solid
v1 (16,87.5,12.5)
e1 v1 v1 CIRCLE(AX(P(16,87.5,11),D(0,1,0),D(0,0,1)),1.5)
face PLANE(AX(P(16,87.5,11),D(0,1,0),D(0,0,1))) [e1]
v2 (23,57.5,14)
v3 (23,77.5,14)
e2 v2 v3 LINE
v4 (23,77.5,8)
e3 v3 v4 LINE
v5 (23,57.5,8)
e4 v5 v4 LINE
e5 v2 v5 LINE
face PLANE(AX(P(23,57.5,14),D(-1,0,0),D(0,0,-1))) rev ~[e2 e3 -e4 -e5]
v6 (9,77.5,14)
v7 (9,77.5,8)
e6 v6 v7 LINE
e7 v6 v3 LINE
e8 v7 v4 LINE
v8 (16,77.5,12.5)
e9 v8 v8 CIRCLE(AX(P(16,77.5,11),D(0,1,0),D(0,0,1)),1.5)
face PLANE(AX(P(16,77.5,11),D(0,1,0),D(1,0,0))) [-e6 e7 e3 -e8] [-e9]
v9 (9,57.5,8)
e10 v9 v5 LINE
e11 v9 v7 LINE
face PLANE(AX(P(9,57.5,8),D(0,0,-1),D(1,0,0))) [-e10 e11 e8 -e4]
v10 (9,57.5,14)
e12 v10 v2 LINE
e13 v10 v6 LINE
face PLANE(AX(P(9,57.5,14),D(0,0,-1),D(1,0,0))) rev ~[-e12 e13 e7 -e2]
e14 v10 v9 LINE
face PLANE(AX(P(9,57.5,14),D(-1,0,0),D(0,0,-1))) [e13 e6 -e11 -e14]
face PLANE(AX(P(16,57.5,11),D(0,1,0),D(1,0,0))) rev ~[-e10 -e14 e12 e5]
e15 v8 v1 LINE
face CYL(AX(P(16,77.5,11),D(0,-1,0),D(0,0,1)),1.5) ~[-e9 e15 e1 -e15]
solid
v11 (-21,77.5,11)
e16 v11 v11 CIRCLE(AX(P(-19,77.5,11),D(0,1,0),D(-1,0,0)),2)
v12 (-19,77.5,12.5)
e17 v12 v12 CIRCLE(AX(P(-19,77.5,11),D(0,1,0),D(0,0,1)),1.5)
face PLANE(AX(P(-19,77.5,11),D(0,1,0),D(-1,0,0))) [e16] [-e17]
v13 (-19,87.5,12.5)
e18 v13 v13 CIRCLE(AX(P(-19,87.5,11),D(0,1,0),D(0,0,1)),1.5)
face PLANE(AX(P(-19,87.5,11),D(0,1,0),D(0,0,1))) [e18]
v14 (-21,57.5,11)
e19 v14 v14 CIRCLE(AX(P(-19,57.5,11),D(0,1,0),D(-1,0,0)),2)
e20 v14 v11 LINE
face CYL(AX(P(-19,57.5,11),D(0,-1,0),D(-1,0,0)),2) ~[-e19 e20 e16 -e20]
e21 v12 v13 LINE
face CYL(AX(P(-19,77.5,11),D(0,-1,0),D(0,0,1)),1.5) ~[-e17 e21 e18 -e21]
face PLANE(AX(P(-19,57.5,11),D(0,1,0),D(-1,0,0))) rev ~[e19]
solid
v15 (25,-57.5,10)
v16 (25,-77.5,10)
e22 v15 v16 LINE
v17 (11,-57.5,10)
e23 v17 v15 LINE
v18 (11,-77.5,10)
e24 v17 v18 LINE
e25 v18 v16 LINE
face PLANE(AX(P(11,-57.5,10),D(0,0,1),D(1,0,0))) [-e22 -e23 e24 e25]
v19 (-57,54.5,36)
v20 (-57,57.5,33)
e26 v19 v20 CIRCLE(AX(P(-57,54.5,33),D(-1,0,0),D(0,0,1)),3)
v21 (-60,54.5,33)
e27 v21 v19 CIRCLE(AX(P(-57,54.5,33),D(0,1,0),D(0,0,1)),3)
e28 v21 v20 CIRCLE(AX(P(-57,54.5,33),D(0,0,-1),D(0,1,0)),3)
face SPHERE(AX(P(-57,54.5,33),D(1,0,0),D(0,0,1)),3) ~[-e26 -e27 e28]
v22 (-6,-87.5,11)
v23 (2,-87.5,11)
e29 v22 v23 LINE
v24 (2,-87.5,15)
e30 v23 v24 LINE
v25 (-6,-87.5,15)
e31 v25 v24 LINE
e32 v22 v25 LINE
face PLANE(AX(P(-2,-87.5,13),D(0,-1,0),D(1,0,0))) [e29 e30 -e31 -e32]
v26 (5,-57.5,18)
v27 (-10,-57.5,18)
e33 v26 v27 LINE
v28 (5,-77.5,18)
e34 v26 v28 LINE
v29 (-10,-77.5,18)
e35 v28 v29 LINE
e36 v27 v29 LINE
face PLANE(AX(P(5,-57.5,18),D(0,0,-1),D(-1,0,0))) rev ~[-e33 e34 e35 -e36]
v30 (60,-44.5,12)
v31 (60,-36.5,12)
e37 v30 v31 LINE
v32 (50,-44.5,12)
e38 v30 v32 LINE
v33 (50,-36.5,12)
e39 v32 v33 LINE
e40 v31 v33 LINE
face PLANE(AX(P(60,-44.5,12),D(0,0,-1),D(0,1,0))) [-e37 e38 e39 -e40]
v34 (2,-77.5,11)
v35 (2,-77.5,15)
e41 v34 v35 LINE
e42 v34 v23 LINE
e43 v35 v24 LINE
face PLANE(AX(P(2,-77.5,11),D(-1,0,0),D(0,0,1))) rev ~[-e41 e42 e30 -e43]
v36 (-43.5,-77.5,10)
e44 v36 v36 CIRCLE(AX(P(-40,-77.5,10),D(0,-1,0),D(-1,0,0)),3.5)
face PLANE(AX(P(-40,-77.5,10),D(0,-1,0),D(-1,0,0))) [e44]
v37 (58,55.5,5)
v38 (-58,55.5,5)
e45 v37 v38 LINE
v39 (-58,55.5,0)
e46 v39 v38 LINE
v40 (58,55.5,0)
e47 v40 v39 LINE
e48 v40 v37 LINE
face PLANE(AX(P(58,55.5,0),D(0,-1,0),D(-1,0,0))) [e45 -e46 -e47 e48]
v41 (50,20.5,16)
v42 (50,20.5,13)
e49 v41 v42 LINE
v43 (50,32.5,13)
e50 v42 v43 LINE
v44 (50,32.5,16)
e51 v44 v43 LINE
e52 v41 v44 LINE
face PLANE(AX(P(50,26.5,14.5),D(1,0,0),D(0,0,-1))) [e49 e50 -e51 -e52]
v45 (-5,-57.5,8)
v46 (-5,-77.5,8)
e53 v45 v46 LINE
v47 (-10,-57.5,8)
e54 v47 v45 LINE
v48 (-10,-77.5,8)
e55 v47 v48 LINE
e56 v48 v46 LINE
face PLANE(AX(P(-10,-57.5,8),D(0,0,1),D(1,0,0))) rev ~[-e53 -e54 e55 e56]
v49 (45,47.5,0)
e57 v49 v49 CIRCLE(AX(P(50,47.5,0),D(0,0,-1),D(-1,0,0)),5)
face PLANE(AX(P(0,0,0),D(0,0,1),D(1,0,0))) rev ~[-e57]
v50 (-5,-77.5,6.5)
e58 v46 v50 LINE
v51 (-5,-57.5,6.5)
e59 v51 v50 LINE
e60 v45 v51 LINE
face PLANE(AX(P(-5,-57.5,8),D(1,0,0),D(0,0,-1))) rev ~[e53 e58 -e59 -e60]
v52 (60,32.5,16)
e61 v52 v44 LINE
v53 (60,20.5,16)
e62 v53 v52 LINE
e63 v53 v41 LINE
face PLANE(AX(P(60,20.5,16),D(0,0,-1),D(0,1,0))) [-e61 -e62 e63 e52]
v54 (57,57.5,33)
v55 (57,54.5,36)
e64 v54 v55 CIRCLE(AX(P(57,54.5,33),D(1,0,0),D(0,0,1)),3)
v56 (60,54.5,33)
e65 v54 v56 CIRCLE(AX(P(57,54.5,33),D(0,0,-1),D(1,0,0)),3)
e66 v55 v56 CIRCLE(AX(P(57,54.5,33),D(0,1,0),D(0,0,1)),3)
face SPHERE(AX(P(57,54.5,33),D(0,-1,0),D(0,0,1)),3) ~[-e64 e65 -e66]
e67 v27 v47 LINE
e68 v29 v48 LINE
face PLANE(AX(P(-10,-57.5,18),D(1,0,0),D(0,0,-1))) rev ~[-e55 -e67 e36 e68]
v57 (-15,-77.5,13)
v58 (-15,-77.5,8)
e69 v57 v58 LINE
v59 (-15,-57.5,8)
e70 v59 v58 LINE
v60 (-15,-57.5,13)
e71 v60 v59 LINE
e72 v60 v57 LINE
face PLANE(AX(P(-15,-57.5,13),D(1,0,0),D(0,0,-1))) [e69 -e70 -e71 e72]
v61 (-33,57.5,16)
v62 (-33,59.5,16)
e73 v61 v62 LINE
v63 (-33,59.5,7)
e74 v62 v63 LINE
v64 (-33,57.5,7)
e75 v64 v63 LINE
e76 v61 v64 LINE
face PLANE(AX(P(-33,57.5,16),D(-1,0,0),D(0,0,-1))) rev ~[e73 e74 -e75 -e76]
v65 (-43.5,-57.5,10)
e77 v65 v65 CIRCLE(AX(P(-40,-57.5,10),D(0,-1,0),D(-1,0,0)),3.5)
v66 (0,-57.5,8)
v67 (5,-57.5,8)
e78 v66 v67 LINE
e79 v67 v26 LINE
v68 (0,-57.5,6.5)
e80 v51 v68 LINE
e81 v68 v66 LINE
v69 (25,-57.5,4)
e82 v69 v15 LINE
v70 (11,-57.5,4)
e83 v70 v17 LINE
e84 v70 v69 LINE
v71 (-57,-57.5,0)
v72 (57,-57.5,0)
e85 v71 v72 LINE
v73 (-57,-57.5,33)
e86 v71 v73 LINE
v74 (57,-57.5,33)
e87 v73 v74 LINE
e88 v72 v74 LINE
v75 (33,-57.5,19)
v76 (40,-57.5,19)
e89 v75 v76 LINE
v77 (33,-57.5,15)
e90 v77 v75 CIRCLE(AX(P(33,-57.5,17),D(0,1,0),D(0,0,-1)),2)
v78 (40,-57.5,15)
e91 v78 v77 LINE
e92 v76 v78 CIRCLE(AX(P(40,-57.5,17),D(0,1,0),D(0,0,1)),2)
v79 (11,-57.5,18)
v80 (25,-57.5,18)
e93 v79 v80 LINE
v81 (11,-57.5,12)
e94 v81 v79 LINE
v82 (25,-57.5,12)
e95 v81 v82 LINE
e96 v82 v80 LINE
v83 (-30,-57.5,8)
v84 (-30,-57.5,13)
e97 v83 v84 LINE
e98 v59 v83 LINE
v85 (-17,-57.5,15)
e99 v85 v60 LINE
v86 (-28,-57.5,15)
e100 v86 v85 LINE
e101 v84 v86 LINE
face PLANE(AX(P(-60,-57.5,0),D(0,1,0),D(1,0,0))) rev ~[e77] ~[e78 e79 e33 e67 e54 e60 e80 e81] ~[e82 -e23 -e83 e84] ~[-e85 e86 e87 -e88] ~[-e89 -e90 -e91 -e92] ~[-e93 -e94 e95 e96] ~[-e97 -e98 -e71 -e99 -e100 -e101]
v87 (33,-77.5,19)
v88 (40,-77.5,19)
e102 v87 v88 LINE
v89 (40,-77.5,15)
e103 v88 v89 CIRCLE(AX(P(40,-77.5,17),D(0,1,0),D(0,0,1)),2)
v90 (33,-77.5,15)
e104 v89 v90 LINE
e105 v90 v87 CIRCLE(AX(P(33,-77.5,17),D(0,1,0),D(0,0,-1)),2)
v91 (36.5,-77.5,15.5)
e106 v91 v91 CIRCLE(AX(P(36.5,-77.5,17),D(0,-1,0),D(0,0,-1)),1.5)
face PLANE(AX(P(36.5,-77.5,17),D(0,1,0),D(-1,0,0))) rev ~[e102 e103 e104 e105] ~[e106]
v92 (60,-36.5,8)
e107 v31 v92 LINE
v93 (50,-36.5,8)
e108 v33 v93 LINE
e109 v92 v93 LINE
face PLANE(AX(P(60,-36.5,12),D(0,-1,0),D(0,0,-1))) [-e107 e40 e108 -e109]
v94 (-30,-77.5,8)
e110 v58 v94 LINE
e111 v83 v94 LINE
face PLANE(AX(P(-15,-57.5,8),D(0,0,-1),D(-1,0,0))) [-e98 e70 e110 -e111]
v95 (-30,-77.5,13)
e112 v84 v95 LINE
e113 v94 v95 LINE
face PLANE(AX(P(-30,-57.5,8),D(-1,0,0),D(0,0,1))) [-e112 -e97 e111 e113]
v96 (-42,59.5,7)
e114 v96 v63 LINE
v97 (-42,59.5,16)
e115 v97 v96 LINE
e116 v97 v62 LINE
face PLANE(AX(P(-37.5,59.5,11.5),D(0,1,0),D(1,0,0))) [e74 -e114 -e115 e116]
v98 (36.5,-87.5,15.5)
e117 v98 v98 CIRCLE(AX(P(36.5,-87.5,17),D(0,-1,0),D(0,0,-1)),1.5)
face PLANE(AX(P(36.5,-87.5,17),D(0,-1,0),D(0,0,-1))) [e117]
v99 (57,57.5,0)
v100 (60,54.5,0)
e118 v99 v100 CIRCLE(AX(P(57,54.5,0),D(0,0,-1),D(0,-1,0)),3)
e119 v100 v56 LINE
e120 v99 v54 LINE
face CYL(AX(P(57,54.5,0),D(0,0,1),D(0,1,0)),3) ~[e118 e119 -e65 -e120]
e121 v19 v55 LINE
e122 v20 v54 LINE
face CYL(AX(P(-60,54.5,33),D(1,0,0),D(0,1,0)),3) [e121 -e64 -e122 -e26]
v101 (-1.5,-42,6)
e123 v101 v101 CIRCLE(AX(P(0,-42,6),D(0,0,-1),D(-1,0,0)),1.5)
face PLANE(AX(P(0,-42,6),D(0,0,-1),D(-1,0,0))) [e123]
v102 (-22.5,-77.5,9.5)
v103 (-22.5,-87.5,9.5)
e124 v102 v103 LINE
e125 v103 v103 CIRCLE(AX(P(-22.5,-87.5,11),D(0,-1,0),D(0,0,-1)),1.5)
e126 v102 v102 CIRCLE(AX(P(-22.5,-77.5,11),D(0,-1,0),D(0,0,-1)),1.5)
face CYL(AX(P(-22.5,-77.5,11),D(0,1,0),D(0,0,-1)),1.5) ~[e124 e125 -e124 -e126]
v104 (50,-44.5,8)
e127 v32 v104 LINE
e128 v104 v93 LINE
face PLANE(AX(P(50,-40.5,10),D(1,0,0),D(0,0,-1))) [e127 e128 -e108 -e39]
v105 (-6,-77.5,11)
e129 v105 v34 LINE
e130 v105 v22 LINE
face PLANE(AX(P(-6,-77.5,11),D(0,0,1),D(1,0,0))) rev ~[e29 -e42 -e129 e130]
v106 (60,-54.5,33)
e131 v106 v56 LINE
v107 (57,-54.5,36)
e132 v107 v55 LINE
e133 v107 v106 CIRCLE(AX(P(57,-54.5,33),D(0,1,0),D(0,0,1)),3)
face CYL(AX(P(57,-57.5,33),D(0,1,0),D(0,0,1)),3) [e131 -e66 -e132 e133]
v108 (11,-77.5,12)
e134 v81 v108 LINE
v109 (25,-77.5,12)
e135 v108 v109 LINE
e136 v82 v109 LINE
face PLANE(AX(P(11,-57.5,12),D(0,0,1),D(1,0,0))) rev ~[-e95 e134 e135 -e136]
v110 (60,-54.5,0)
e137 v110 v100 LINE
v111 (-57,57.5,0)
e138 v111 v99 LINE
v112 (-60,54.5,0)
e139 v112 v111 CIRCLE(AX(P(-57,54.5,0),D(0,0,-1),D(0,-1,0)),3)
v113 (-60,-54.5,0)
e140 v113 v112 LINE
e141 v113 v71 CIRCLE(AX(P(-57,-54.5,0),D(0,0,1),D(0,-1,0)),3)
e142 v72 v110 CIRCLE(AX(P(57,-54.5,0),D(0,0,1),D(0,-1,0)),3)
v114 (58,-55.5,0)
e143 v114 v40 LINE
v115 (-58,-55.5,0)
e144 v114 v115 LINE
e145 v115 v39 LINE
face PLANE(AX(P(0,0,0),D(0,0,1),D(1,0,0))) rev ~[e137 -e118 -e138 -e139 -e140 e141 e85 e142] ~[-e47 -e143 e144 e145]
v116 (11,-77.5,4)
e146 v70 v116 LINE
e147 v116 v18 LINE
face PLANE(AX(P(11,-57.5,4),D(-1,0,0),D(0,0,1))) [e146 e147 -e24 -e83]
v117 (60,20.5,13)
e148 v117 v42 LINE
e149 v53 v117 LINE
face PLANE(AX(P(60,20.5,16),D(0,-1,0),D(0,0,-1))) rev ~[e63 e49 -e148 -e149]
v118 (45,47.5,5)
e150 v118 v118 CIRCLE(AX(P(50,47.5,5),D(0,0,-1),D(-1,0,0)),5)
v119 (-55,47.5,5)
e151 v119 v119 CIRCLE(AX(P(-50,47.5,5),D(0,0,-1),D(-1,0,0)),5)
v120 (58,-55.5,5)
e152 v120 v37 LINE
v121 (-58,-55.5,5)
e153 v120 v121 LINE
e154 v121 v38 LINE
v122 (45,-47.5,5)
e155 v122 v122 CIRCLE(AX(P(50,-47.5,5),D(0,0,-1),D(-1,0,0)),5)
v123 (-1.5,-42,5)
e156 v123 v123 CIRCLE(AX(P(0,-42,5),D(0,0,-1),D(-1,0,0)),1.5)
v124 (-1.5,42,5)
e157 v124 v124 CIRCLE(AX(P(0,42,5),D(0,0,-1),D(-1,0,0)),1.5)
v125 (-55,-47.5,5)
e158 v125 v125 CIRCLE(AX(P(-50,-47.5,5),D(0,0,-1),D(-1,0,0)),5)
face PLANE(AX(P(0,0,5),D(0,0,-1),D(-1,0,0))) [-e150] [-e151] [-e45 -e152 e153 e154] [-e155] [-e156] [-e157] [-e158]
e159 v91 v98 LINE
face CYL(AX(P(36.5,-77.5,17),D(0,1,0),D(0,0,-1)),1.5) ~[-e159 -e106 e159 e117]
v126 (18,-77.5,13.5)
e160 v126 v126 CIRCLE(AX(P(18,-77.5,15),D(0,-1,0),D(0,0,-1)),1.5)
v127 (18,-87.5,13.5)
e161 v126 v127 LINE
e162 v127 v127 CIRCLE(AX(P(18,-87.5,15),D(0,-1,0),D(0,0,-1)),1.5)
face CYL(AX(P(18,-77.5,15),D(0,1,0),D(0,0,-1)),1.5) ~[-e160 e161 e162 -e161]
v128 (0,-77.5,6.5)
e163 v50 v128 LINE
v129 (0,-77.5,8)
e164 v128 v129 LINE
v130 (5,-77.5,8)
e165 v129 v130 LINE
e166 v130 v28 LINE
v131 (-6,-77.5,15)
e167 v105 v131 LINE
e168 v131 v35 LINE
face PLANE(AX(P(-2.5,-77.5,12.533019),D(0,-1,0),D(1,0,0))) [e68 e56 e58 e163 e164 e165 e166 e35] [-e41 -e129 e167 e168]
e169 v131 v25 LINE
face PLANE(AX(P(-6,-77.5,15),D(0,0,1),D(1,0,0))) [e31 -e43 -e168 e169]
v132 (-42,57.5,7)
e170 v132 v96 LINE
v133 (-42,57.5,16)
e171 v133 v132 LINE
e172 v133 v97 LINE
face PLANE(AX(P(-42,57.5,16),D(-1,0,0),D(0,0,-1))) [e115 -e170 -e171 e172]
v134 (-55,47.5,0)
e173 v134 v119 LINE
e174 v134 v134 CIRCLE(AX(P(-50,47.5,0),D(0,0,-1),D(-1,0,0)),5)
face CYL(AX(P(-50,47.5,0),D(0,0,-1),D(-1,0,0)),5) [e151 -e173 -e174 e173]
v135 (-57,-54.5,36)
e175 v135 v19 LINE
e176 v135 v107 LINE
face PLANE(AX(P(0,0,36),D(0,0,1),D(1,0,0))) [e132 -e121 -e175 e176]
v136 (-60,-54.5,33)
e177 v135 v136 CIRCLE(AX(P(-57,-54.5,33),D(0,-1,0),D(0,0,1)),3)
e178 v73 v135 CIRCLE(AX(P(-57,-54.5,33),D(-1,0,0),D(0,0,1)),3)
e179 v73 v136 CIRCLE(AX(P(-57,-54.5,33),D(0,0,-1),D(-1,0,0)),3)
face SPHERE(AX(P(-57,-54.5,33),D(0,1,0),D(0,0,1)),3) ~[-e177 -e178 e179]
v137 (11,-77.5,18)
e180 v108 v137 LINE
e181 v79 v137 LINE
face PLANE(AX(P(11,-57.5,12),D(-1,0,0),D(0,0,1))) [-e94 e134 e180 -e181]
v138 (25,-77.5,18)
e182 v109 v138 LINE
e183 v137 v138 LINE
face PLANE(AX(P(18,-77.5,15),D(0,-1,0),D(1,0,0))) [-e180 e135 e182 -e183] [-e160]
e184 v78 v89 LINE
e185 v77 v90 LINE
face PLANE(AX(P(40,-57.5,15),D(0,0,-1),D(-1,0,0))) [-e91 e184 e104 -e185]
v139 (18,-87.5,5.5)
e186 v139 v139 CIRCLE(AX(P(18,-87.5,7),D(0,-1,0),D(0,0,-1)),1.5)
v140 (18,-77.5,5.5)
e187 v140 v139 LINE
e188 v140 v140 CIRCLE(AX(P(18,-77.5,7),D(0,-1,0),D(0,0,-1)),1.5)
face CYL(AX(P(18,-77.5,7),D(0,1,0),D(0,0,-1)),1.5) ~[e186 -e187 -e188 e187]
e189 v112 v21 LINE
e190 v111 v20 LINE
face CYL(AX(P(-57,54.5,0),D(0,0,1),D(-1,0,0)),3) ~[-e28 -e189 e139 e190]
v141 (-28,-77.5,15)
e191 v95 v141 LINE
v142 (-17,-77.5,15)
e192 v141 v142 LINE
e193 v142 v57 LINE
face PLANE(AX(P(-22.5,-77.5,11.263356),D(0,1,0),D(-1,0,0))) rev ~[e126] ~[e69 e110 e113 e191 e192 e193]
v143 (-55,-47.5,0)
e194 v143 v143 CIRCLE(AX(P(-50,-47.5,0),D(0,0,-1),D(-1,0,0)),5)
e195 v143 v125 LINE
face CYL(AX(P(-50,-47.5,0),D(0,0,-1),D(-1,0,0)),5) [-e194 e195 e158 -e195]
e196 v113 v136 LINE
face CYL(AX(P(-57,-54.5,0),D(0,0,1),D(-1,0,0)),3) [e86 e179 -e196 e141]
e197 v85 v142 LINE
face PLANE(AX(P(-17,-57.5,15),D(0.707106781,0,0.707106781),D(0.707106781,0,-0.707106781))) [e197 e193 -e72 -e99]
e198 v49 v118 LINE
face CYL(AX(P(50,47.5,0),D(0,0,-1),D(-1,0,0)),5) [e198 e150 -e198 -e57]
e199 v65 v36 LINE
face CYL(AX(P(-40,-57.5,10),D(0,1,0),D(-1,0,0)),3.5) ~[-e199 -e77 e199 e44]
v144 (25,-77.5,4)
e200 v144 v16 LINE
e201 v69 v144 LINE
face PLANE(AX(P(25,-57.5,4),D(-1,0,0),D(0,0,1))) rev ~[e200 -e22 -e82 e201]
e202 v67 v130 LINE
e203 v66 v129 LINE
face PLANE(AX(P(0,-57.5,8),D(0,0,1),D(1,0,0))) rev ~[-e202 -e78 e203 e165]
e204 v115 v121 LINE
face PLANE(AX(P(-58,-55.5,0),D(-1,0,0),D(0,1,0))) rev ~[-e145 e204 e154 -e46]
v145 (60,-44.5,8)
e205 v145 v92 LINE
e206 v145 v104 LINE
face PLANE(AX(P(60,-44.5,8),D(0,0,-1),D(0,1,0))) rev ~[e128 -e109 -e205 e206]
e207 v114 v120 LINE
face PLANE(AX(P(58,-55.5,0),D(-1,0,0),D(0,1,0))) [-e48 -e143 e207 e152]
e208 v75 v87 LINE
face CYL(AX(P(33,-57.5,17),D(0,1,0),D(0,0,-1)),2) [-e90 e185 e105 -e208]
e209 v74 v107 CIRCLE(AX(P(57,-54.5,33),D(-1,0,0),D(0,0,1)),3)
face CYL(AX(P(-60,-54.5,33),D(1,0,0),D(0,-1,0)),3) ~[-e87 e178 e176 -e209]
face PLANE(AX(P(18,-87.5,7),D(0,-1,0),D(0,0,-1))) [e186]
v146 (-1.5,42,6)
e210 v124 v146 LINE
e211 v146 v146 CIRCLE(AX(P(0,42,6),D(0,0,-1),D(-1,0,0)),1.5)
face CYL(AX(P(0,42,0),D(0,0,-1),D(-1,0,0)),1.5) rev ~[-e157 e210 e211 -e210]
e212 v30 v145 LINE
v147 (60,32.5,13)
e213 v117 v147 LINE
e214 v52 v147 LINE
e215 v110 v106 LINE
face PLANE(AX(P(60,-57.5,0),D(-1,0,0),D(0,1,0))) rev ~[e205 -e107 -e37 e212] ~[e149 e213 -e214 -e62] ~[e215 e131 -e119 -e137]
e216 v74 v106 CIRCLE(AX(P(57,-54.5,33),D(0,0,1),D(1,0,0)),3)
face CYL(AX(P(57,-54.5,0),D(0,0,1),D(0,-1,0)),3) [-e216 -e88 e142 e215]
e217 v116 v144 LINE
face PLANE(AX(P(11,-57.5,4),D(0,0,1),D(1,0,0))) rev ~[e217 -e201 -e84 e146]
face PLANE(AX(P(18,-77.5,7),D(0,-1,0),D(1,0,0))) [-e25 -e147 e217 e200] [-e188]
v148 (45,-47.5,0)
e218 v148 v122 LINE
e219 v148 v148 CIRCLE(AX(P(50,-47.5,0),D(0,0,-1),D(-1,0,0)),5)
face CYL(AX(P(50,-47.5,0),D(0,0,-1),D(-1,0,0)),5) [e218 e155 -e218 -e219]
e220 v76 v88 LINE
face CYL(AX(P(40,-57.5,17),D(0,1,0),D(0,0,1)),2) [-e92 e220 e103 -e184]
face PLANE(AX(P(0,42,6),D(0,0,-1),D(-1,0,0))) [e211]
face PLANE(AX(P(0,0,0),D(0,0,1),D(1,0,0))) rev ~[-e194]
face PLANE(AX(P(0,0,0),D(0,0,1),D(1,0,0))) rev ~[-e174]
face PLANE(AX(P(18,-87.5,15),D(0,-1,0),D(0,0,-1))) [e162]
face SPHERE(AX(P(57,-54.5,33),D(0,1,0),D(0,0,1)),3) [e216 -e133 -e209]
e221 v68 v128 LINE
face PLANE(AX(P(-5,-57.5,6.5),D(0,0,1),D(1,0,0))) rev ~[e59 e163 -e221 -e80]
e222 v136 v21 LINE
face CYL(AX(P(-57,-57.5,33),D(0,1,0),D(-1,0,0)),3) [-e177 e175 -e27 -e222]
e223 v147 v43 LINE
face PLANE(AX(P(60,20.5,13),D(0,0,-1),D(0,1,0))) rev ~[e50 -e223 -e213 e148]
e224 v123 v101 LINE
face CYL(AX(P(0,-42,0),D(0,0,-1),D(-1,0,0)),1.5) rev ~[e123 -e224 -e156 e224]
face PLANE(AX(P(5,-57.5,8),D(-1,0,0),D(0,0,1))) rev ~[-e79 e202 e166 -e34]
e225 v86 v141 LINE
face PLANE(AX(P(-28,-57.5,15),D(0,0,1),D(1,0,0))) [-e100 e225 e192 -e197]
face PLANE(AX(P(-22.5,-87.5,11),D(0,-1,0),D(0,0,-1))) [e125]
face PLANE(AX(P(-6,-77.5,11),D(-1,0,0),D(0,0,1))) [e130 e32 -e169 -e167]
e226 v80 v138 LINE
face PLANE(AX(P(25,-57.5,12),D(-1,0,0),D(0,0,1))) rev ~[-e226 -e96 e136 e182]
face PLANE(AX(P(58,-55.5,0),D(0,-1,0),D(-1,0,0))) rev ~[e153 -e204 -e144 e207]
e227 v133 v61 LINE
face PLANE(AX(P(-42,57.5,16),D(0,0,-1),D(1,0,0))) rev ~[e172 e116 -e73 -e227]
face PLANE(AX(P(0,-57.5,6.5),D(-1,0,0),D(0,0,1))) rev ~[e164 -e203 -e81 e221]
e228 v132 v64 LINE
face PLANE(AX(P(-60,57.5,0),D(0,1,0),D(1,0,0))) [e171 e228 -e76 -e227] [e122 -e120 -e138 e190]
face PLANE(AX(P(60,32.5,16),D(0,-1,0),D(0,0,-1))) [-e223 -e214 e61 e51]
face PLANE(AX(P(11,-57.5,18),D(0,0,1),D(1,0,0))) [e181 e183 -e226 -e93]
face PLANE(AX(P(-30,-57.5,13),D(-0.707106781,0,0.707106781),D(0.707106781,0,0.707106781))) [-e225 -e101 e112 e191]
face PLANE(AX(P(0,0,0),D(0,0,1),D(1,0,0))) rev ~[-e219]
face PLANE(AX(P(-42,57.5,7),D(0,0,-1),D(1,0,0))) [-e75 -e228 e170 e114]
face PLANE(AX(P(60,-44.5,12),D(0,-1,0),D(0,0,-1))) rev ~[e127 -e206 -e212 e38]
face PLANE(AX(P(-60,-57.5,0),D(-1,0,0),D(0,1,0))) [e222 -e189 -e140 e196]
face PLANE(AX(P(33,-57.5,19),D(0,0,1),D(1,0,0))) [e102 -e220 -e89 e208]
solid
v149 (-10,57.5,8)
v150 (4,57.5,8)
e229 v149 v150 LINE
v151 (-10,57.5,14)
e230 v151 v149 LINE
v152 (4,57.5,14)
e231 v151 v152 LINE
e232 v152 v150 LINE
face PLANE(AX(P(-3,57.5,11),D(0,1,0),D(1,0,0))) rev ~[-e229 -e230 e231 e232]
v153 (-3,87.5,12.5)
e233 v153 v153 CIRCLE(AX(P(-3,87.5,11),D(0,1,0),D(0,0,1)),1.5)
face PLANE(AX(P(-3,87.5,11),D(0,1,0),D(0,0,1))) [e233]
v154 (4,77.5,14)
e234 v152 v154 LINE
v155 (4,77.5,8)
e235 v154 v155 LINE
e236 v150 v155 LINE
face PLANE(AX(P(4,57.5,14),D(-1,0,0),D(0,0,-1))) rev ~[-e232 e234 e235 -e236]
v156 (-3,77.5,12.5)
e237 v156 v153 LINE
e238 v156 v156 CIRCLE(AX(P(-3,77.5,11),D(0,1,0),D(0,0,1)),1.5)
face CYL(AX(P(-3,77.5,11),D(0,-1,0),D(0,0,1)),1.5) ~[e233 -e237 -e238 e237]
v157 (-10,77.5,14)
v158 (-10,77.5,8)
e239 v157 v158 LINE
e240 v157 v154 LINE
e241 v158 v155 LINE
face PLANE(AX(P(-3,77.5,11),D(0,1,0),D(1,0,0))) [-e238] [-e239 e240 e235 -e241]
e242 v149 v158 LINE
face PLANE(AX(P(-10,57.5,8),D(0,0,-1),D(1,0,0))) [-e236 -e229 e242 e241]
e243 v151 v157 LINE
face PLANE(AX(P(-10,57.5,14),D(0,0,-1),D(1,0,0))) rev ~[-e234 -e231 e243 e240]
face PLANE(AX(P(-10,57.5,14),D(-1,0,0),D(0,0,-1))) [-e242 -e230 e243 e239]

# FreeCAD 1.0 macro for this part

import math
import FreeCAD as App
import Part
import Sketcher
from FreeCAD import Vector


def edges_at(feature, points):
    """Names of the edges that pass closest to the given points."""
    edges = feature.Shape.Edges
    near = lambda p: min(range(len(edges)), key=lambda i: edges[i].distToShape(Part.Vertex(*p))[0])
    return sorted({f"Edge{near(p) + 1}" for p in points})

doc = App.newDocument("Part")
body = doc.addObject("PartDesign::Body", "Body")

# Sketch on XY plane
sketch1 = body.newObject("Sketcher::SketchObject", "Sketch")
sketch1.AttachmentSupport = (doc.getObject("XY_Plane"), [""])
sketch1.MapMode = "FlatFace"
sketch1.addGeometry([
    Part.LineSegment(Vector(-60, 58, 0), Vector(-60, -58, 0)),
    Part.LineSegment(Vector(-60, -58, 0), Vector(60, -58, 0)),
    Part.LineSegment(Vector(60, -58, 0), Vector(60, 58, 0)),
    Part.LineSegment(Vector(60, 58, 0), Vector(-60, 58, 0)),
], False)
sketch1.addConstraint([
    Sketcher.Constraint("Coincident", 0, 2, 1, 1),
    Sketcher.Constraint("Coincident", 1, 2, 2, 1),
    Sketcher.Constraint("Coincident", 2, 2, 3, 1),
    Sketcher.Constraint("Coincident", 3, 2, 0, 1),
    Sketcher.Constraint("Vertical", 0),
    Sketcher.Constraint("Horizontal", 1),
    Sketcher.Constraint("Vertical", 2),
    Sketcher.Constraint("Horizontal", 3),
    Sketcher.Constraint("Symmetric", 0, 2, 2, 2, -1, 1),
    Sketcher.Constraint("DistanceX", 1, 1, 1, 2, 120.0),
    Sketcher.Constraint("DistanceY", 0, 2, 0, 1, 115.0),
])
pad1 = body.newObject("PartDesign::Pad", "Pad")
pad1.Profile = sketch1
pad1.Length = 36

# Sketch on XY plane
sketch2 = body.newObject("Sketcher::SketchObject", "Sketch001")
sketch2.AttachmentSupport = (doc.getObject("XY_Plane"), [""])
sketch2.MapMode = "FlatFace"
sketch2.addGeometry([
    Part.Circle(Vector(0, 42, 0), Vector(0, 0, 1), 1.5),
    Part.Circle(Vector(0, -42, 0), Vector(0, 0, 1), 1.5),
], False)
sketch2.addConstraint([
    Sketcher.Constraint("Equal", 0, 1),
    Sketcher.Constraint("Symmetric", 0, 3, 1, 3, -1, 1),
    Sketcher.Constraint("PointOnObject", 0, 3, -2),
    Sketcher.Constraint("Diameter", 0, 3.0),
    Sketcher.Constraint("DistanceY", -1, 1, 0, 3, 42.0),
])
pocket1 = body.newObject("PartDesign::Pocket", "Pocket")
pocket1.Profile = sketch2
pocket1.Length = 6
pocket1.Reversed = True
doc.recompute()

fillet = body.newObject("PartDesign::Fillet", "Fillet")
fillet.Base = (pocket1, edges_at(pocket1, [
    (60, 0, 36),
    (0, 57.5, 36),
    (-60, 0, 36),
    (0, -57.5, 36),
    (-60, 57.5, 18),
    (60, 57.5, 18),
    (60, -57.5, 18),
    (-60, -57.5, 18),
]))
fillet.Radius = 3

# Sketch on XZ plane
sketch3 = body.newObject("Sketcher::SketchObject", "Sketch002")
sketch3.AttachmentSupport = (doc.getObject("XZ_Plane"), [""])
sketch3.MapMode = "FlatFace"
sketch3.AttachmentOffset = App.Placement(Vector(0, 0, 57.5), App.Rotation())
sketch3.addGeometry([
    Part.Circle(Vector(-40, 10, 0), Vector(0, 0, 1), 3.5),  # 0
    Part.LineSegment(Vector(-28, 15, 0), Vector(-30, 13, 0)),  # 1
    Part.LineSegment(Vector(-30, 13, 0), Vector(-30, 8, 0)),  # 2
    Part.LineSegment(Vector(-30, 8, 0), Vector(-15, 8, 0)),  # 3
    Part.LineSegment(Vector(-15, 8, 0), Vector(-15, 13, 0)),  # 4
    Part.LineSegment(Vector(-15, 13, 0), Vector(-17, 15, 0)),  # 5
    Part.LineSegment(Vector(-17, 15, 0), Vector(-28, 15, 0)),  # 6
    Part.LineSegment(Vector(0, 8, 0), Vector(5, 8, 0)),  # 7
    Part.LineSegment(Vector(5, 8, 0), Vector(5, 18, 0)),  # 8
    Part.LineSegment(Vector(5, 18, 0), Vector(-10, 18, 0)),  # 9
    Part.LineSegment(Vector(-10, 18, 0), Vector(-10, 8, 0)),  # 10
    Part.LineSegment(Vector(-10, 8, 0), Vector(-5, 8, 0)),  # 11
    Part.LineSegment(Vector(-5, 8, 0), Vector(-5, 6.5, 0)),  # 12
    Part.LineSegment(Vector(-5, 6.5, 0), Vector(0, 6.5, 0)),  # 13
    Part.LineSegment(Vector(0, 6.5, 0), Vector(0, 8, 0)),  # 14
    Part.LineSegment(Vector(11, 18, 0), Vector(11, 12, 0)),  # 15
    Part.LineSegment(Vector(11, 12, 0), Vector(25, 12, 0)),  # 16
    Part.LineSegment(Vector(25, 12, 0), Vector(25, 18, 0)),  # 17
    Part.LineSegment(Vector(25, 18, 0), Vector(11, 18, 0)),  # 18
    Part.LineSegment(Vector(11, 10, 0), Vector(11, 4, 0)),  # 19
    Part.LineSegment(Vector(11, 4, 0), Vector(25, 4, 0)),  # 20
    Part.LineSegment(Vector(25, 4, 0), Vector(25, 10, 0)),  # 21
    Part.LineSegment(Vector(25, 10, 0), Vector(11, 10, 0)),  # 22
    Part.LineSegment(Vector(40, 19, 0), Vector(33, 19, 0)),  # 23
    Part.ArcOfCircle(Part.Circle(Vector(33, 17, 0), Vector(0, 0, 1), 2), math.radians(90), math.radians(270)),  # 24
    Part.LineSegment(Vector(33, 15, 0), Vector(40, 15, 0)),  # 25
    Part.ArcOfCircle(Part.Circle(Vector(40, 17, 0), Vector(0, 0, 1), 2), math.radians(-90), math.radians(90)),  # 26
], False)
sketch3.addConstraint([
    Sketcher.Constraint("Coincident", 1, 2, 2, 1),
    Sketcher.Constraint("Coincident", 2, 2, 3, 1),
    Sketcher.Constraint("Coincident", 3, 2, 4, 1),
    Sketcher.Constraint("Coincident", 4, 2, 5, 1),
    Sketcher.Constraint("Coincident", 5, 2, 6, 1),
    Sketcher.Constraint("Coincident", 6, 2, 1, 1),
    Sketcher.Constraint("Coincident", 7, 2, 8, 1),
    Sketcher.Constraint("Coincident", 8, 2, 9, 1),
    Sketcher.Constraint("Coincident", 9, 2, 10, 1),
    Sketcher.Constraint("Coincident", 10, 2, 11, 1),
    Sketcher.Constraint("Coincident", 11, 2, 12, 1),
    Sketcher.Constraint("Coincident", 12, 2, 13, 1),
    Sketcher.Constraint("Coincident", 13, 2, 14, 1),
    Sketcher.Constraint("Coincident", 14, 2, 7, 1),
    Sketcher.Constraint("Coincident", 15, 2, 16, 1),
    Sketcher.Constraint("Coincident", 16, 2, 17, 1),
    Sketcher.Constraint("Coincident", 17, 2, 18, 1),
    Sketcher.Constraint("Coincident", 18, 2, 15, 1),
    Sketcher.Constraint("Coincident", 19, 2, 20, 1),
    Sketcher.Constraint("Coincident", 20, 2, 21, 1),
    Sketcher.Constraint("Coincident", 21, 2, 22, 1),
    Sketcher.Constraint("Coincident", 22, 2, 19, 1),
    Sketcher.Constraint("Tangent", 23, 2, 24, 1),
    Sketcher.Constraint("Tangent", 24, 2, 25, 1),
    Sketcher.Constraint("Tangent", 25, 2, 26, 1),
    Sketcher.Constraint("Tangent", 26, 2, 23, 1),
    Sketcher.Constraint("Vertical", 2),
    Sketcher.Constraint("Horizontal", 3),
    Sketcher.Constraint("Vertical", 4),
    Sketcher.Constraint("Horizontal", 6),
    Sketcher.Constraint("Horizontal", 7),
    Sketcher.Constraint("Vertical", 8),
    Sketcher.Constraint("Horizontal", 9),
    Sketcher.Constraint("Vertical", 10),
    Sketcher.Constraint("Horizontal", 11),
    Sketcher.Constraint("Vertical", 12),
    Sketcher.Constraint("Horizontal", 13),
    Sketcher.Constraint("Vertical", 14),
    Sketcher.Constraint("Vertical", 15),
    Sketcher.Constraint("Horizontal", 16),
    Sketcher.Constraint("Vertical", 17),
    Sketcher.Constraint("Horizontal", 18),
    Sketcher.Constraint("Vertical", 19),
    Sketcher.Constraint("Horizontal", 20),
    Sketcher.Constraint("Vertical", 21),
    Sketcher.Constraint("Horizontal", 22),
    Sketcher.Constraint("Horizontal", 23),
    Sketcher.Constraint("Horizontal", 25),
    Sketcher.Constraint("Symmetric", 7, 2, 11, 2, -2),
    Sketcher.Constraint("PointOnObject", 13, 2, -2),
    Sketcher.Constraint("Perpendicular", 1, 5),
    Sketcher.Constraint("Horizontal", 1, 2, 4, 2),
    Sketcher.Constraint("Horizontal", 3, 2, 7, 2),
    Sketcher.Constraint("Horizontal", 9, 2, 17, 2),
    Sketcher.Constraint("Horizontal", 0, 3, 21, 2),
    Sketcher.Constraint("Horizontal", 6, 2, 24, 2),
    Sketcher.Constraint("Vertical", 18, 2, 19, 2),
    Sketcher.Constraint("Vertical", 17, 2, 20, 2),
    Sketcher.Constraint("Equal", 3, 9),
    Sketcher.Constraint("Equal", 7, 11),
    Sketcher.Constraint("Equal", 13, 2),
    Sketcher.Constraint("Equal", 17, 19),
    Sketcher.Constraint("Equal", 1, 5),
    Sketcher.Constraint("Diameter", 0, 7.0),
    Sketcher.Constraint("Radius", 24, 2.0),
    Sketcher.Constraint("DistanceX", 3, 1, 3, 2, 15.0),
    Sketcher.Constraint("DistanceX", 6, 2, 6, 1, 11.0),
    Sketcher.Constraint("DistanceX", 16, 1, 16, 2, 14.0),
    Sketcher.Constraint("DistanceX", 23, 2, 23, 1, 7.0),
    Sketcher.Constraint("DistanceY", 8, 1, 8, 2, 10.0),
    Sketcher.Constraint("DistanceY", 15, 2, 15, 1, 6.0),
    Sketcher.Constraint("DistanceY", 12, 2, 12, 1, 1.5),
    Sketcher.Constraint("DistanceX", 0, 3, -1, 1, 40.0),
    Sketcher.Constraint("DistanceY", -1, 1, 0, 3, 10.0),
    Sketcher.Constraint("DistanceX", -1, 1, 24, 3, 33.0),
    Sketcher.Constraint("DistanceY", -1, 1, 24, 3, 17.0),
    Sketcher.Constraint("DistanceX", 1, 2, -1, 1, 30.0),
    Sketcher.Constraint("DistanceX", -1, 1, 15, 2, 11.0),
])
pad2 = body.newObject("PartDesign::Pad", "Pad001")
pad2.Profile = sketch3
pad2.Length = 20

# Sketch on XZ plane
sketch4 = body.newObject("Sketcher::SketchObject", "Sketch003")
sketch4.AttachmentSupport = (doc.getObject("XZ_Plane"), [""])
sketch4.MapMode = "FlatFace"
sketch4.AttachmentOffset = App.Placement(Vector(0, 0, 77.5), App.Rotation())
sketch4.addGeometry([
    Part.Circle(Vector(-22.5, 11, 0), Vector(0, 0, 1), 1.5),  # 0
    Part.Circle(Vector(18, 15, 0), Vector(0, 0, 1), 1.5),  # 1
    Part.Circle(Vector(18, 7, 0), Vector(0, 0, 1), 1.5),  # 2
    Part.Circle(Vector(36.5, 17, 0), Vector(0, 0, 1), 1.5),  # 3
    Part.LineSegment(Vector(-6, 15, 0), Vector(-6, 11, 0)),  # 4
    Part.LineSegment(Vector(-6, 11, 0), Vector(2, 11, 0)),  # 5
    Part.LineSegment(Vector(2, 11, 0), Vector(2, 15, 0)),  # 6
    Part.LineSegment(Vector(2, 15, 0), Vector(-6, 15, 0)),  # 7
], False)
sketch4.addConstraint([
    Sketcher.Constraint("Coincident", 4, 2, 5, 1),
    Sketcher.Constraint("Coincident", 5, 2, 6, 1),
    Sketcher.Constraint("Coincident", 6, 2, 7, 1),
    Sketcher.Constraint("Coincident", 7, 2, 4, 1),
    Sketcher.Constraint("Vertical", 4),
    Sketcher.Constraint("Horizontal", 5),
    Sketcher.Constraint("Vertical", 6),
    Sketcher.Constraint("Horizontal", 7),
    Sketcher.Constraint("Equal", 0, 1),
    Sketcher.Constraint("Equal", 1, 2),
    Sketcher.Constraint("Equal", 2, 3),
    Sketcher.Constraint("Horizontal", 0, 3, 4, 2),
    Sketcher.Constraint("Horizontal", 1, 3, 6, 2),
    Sketcher.Constraint("Vertical", 1, 3, 2, 3),
    Sketcher.Constraint("Diameter", 0, 3.0),
    Sketcher.Constraint("DistanceX", 5, 1, 5, 2, 8.0),
    Sketcher.Constraint("DistanceY", 4, 2, 4, 1, 4.0),
    Sketcher.Constraint("DistanceY", -1, 1, 0, 3, 11.0),
    Sketcher.Constraint("DistanceX", -1, 1, 1, 3, 18.0),
    Sketcher.Constraint("DistanceY", -1, 1, 2, 3, 7.0),
    Sketcher.Constraint("DistanceY", -1, 1, 3, 3, 17.0),
    Sketcher.Constraint("DistanceX", 4, 2, -1, 1, 6.0),
    Sketcher.Constraint("DistanceX", 0, 3, 3, 3, 59.0),
    Sketcher.Constraint("DistanceX", 0, 3, -1, 1, 22.5),
])
pad3 = body.newObject("PartDesign::Pad", "Pad002")
pad3.Profile = sketch4
pad3.Length = 10

# Sketch on YZ plane
sketch5 = body.newObject("Sketcher::SketchObject", "Sketch004")
sketch5.AttachmentSupport = (doc.getObject("YZ_Plane"), [""])
sketch5.MapMode = "FlatFace"
sketch5.AttachmentOffset = App.Placement(Vector(0, 0, 60), App.Rotation())
sketch5.addGeometry([
    Part.LineSegment(Vector(32.5, 16, 0), Vector(20.5, 16, 0)),  # 0
    Part.LineSegment(Vector(20.5, 16, 0), Vector(20.5, 13, 0)),  # 1
    Part.LineSegment(Vector(20.5, 13, 0), Vector(32.5, 13, 0)),  # 2
    Part.LineSegment(Vector(32.5, 13, 0), Vector(32.5, 16, 0)),  # 3
    Part.LineSegment(Vector(-36.5, 12, 0), Vector(-44.5, 12, 0)),  # 4
    Part.LineSegment(Vector(-44.5, 12, 0), Vector(-44.5, 8, 0)),  # 5
    Part.LineSegment(Vector(-44.5, 8, 0), Vector(-36.5, 8, 0)),  # 6
    Part.LineSegment(Vector(-36.5, 8, 0), Vector(-36.5, 12, 0)),  # 7
], False)
sketch5.addConstraint([
    Sketcher.Constraint("Coincident", 0, 2, 1, 1),
    Sketcher.Constraint("Coincident", 1, 2, 2, 1),
    Sketcher.Constraint("Coincident", 2, 2, 3, 1),
    Sketcher.Constraint("Coincident", 3, 2, 0, 1),
    Sketcher.Constraint("Coincident", 4, 2, 5, 1),
    Sketcher.Constraint("Coincident", 5, 2, 6, 1),
    Sketcher.Constraint("Coincident", 6, 2, 7, 1),
    Sketcher.Constraint("Coincident", 7, 2, 4, 1),
    Sketcher.Constraint("Horizontal", 0),
    Sketcher.Constraint("Vertical", 1),
    Sketcher.Constraint("Horizontal", 2),
    Sketcher.Constraint("Vertical", 3),
    Sketcher.Constraint("Horizontal", 4),
    Sketcher.Constraint("Vertical", 5),
    Sketcher.Constraint("Horizontal", 6),
    Sketcher.Constraint("Vertical", 7),
    Sketcher.Constraint("DistanceX", 0, 2, 0, 1, 12.0),
    Sketcher.Constraint("DistanceX", 4, 2, 4, 1, 8.0),
    Sketcher.Constraint("DistanceY", 1, 2, 1, 1, 3.0),
    Sketcher.Constraint("DistanceY", 5, 2, 5, 1, 4.0),
    Sketcher.Constraint("DistanceY", -1, 1, 0, 2, 16.0),
    Sketcher.Constraint("DistanceY", -1, 1, 4, 2, 12.0),
    Sketcher.Constraint("DistanceX", 4, 2, 1, 2, 65.0),
    Sketcher.Constraint("DistanceX", -1, 1, 0, 2, 20.5),
])
pocket2 = body.newObject("PartDesign::Pocket", "Pocket001")
pocket2.Profile = sketch5
pocket2.Length = 10

# Sketch on XZ plane
sketch6 = body.newObject("Sketcher::SketchObject", "Sketch005")
sketch6.AttachmentSupport = (doc.getObject("XZ_Plane"), [""])
sketch6.MapMode = "FlatFace"
sketch6.AttachmentOffset = App.Placement(Vector(0, 0, -57.5), App.Rotation())
sketch6.addGeometry([
    Part.LineSegment(Vector(-42, 7, 0), Vector(-42, 16, 0)),
    Part.LineSegment(Vector(-42, 16, 0), Vector(-33, 16, 0)),
    Part.LineSegment(Vector(-33, 16, 0), Vector(-33, 7, 0)),
    Part.LineSegment(Vector(-33, 7, 0), Vector(-42, 7, 0)),
], False)
sketch6.addConstraint([
    Sketcher.Constraint("Coincident", 0, 2, 1, 1),
    Sketcher.Constraint("Coincident", 1, 2, 2, 1),
    Sketcher.Constraint("Coincident", 2, 2, 3, 1),
    Sketcher.Constraint("Coincident", 3, 2, 0, 1),
    Sketcher.Constraint("Vertical", 0),
    Sketcher.Constraint("Horizontal", 1),
    Sketcher.Constraint("Vertical", 2),
    Sketcher.Constraint("Horizontal", 3),
    Sketcher.Constraint("Equal", 3, 0),
    Sketcher.Constraint("DistanceX", 1, 1, 1, 2, 9.0),
    Sketcher.Constraint("DistanceX", 0, 2, -1, 1, 42.0),
    Sketcher.Constraint("DistanceY", -1, 1, 0, 2, 16.0),
])
pad4 = body.newObject("PartDesign::Pad", "Pad003")
pad4.Profile = sketch6
pad4.Length = 2
pad4.Reversed = True

# Sketch on XY plane
sketch7 = body.newObject("Sketcher::SketchObject", "Sketch006")
sketch7.AttachmentSupport = (doc.getObject("XY_Plane"), [""])
sketch7.MapMode = "FlatFace"
sketch7.addGeometry([
    Part.LineSegment(Vector(58, 55.5, 0), Vector(58, -55.5, 0)),  # 0
    Part.LineSegment(Vector(58, -55.5, 0), Vector(-58, -55.5, 0)),  # 1
    Part.LineSegment(Vector(-58, -55.5, 0), Vector(-58, 55.5, 0)),  # 2
    Part.LineSegment(Vector(-58, 55.5, 0), Vector(58, 55.5, 0)),  # 3
    Part.Circle(Vector(50, -47.5, 0), Vector(0, 0, 1), 5),  # 4
    Part.Circle(Vector(0, -42, 0), Vector(0, 0, 1), 1.5),  # 5
    Part.Circle(Vector(-50, -47.5, 0), Vector(0, 0, 1), 5),  # 6
    Part.Circle(Vector(50, 47.5, 0), Vector(0, 0, 1), 5),  # 7
    Part.Circle(Vector(0, 42, 0), Vector(0, 0, 1), 1.5),  # 8
    Part.Circle(Vector(-50, 47.5, 0), Vector(0, 0, 1), 5),  # 9
], False)
sketch7.addConstraint([
    Sketcher.Constraint("Coincident", 0, 2, 1, 1),
    Sketcher.Constraint("Coincident", 1, 2, 2, 1),
    Sketcher.Constraint("Coincident", 2, 2, 3, 1),
    Sketcher.Constraint("Coincident", 3, 2, 0, 1),
    Sketcher.Constraint("Vertical", 0),
    Sketcher.Constraint("Horizontal", 1),
    Sketcher.Constraint("Vertical", 2),
    Sketcher.Constraint("Horizontal", 3),
    Sketcher.Constraint("Equal", 4, 6),
    Sketcher.Constraint("Equal", 6, 7),
    Sketcher.Constraint("Equal", 5, 8),
    Sketcher.Constraint("Equal", 7, 9),
    Sketcher.Constraint("Symmetric", 6, 3, 7, 3, -1, 1),
    Sketcher.Constraint("Symmetric", 5, 3, 8, 3, -1, 1),
    Sketcher.Constraint("Symmetric", 4, 3, 9, 3, -1, 1),
    Sketcher.Constraint("Symmetric", 0, 2, 2, 2, -1, 1),
    Sketcher.Constraint("Symmetric", 4, 3, 6, 3, -2),
    Sketcher.Constraint("PointOnObject", 5, 3, -2),
    Sketcher.Constraint("Diameter", 4, 10.0),
    Sketcher.Constraint("Diameter", 5, 3.0),
    Sketcher.Constraint("DistanceX", 1, 2, 1, 1, 116.0),
    Sketcher.Constraint("DistanceY", 0, 2, 0, 1, 111.0),
    Sketcher.Constraint("DistanceX", -1, 1, 4, 3, 50.0),
    Sketcher.Constraint("DistanceY", 5, 3, -1, 1, 42.0),
    Sketcher.Constraint("DistanceY", 4, 3, 7, 3, 95.0),
])
pocket3 = body.newObject("PartDesign::Pocket", "Pocket002")
pocket3.Profile = sketch7
pocket3.Length = 5
pocket3.Reversed = True
body2 = doc.addObject("PartDesign::Body", "Body001")

# Sketch on XZ plane
sketch8 = body2.newObject("Sketcher::SketchObject", "Sketch007")
sketch8.AttachmentSupport = (doc.getObject("XZ_Plane001"), [""])
sketch8.MapMode = "FlatFace"
sketch8.AttachmentOffset = App.Placement(Vector(0, 0, -57.5), App.Rotation())
sketch8.addGeometry(Part.Circle(Vector(-19, 11, 0), Vector(0, 0, 1), 2), False)
sketch8.addConstraint([
    Sketcher.Constraint("Diameter", 0, 4.0),
    Sketcher.Constraint("DistanceX", 0, 3, -1, 1, 19.0),
    Sketcher.Constraint("DistanceY", -1, 1, 0, 3, 11.0),
])
pad5 = body2.newObject("PartDesign::Pad", "Pad004")
pad5.Profile = sketch8
pad5.Length = 20
pad5.Reversed = True
body3 = doc.addObject("PartDesign::Body", "Body002")

# Sketch on XZ plane
sketch9 = body3.newObject("Sketcher::SketchObject", "Sketch008")
sketch9.AttachmentSupport = (doc.getObject("XZ_Plane002"), [""])
sketch9.MapMode = "FlatFace"
sketch9.AttachmentOffset = App.Placement(Vector(0, 0, -57.5), App.Rotation())
sketch9.addGeometry([
    Part.LineSegment(Vector(-10, 8, 0), Vector(-10, 14, 0)),
    Part.LineSegment(Vector(-10, 14, 0), Vector(4, 14, 0)),
    Part.LineSegment(Vector(4, 14, 0), Vector(4, 8, 0)),
    Part.LineSegment(Vector(4, 8, 0), Vector(-10, 8, 0)),
], False)
sketch9.addConstraint([
    Sketcher.Constraint("Coincident", 0, 2, 1, 1),
    Sketcher.Constraint("Coincident", 1, 2, 2, 1),
    Sketcher.Constraint("Coincident", 2, 2, 3, 1),
    Sketcher.Constraint("Coincident", 3, 2, 0, 1),
    Sketcher.Constraint("Vertical", 0),
    Sketcher.Constraint("Horizontal", 1),
    Sketcher.Constraint("Vertical", 2),
    Sketcher.Constraint("Horizontal", 3),
    Sketcher.Constraint("DistanceX", 1, 1, 1, 2, 14.0),
    Sketcher.Constraint("DistanceY", 0, 1, 0, 2, 6.0),
    Sketcher.Constraint("DistanceX", 0, 2, -1, 1, 10.0),
    Sketcher.Constraint("DistanceY", -1, 1, 0, 2, 14.0),
])
pad6 = body3.newObject("PartDesign::Pad", "Pad005")
pad6.Profile = sketch9
pad6.Length = 20
pad6.Reversed = True
body4 = doc.addObject("PartDesign::Body", "Body003")

# Sketch on XZ plane
sketch10 = body4.newObject("Sketcher::SketchObject", "Sketch009")
sketch10.AttachmentSupport = (doc.getObject("XZ_Plane003"), [""])
sketch10.MapMode = "FlatFace"
sketch10.AttachmentOffset = App.Placement(Vector(0, 0, -57.5), App.Rotation())
sketch10.addGeometry([
    Part.LineSegment(Vector(9, 8, 0), Vector(9, 14, 0)),
    Part.LineSegment(Vector(9, 14, 0), Vector(23, 14, 0)),
    Part.LineSegment(Vector(23, 14, 0), Vector(23, 8, 0)),
    Part.LineSegment(Vector(23, 8, 0), Vector(9, 8, 0)),
], False)
sketch10.addConstraint([
    Sketcher.Constraint("Coincident", 0, 2, 1, 1),
    Sketcher.Constraint("Coincident", 1, 2, 2, 1),
    Sketcher.Constraint("Coincident", 2, 2, 3, 1),
    Sketcher.Constraint("Coincident", 3, 2, 0, 1),
    Sketcher.Constraint("Vertical", 0),
    Sketcher.Constraint("Horizontal", 1),
    Sketcher.Constraint("Vertical", 2),
    Sketcher.Constraint("Horizontal", 3),
    Sketcher.Constraint("DistanceX", 1, 1, 1, 2, 14.0),
    Sketcher.Constraint("DistanceY", 0, 1, 0, 2, 6.0),
    Sketcher.Constraint("DistanceX", -1, 1, 0, 2, 9.0),
    Sketcher.Constraint("DistanceY", -1, 1, 0, 2, 14.0),
])
pad7 = body4.newObject("PartDesign::Pad", "Pad006")
pad7.Profile = sketch10
pad7.Length = 20
pad7.Reversed = True
body2.AllowCompound = True
doc.recompute()

boolean = body2.newObject("PartDesign::Boolean", "Boolean")
boolean.Type = "Fuse"
boolean.addObjects([body3])
doc.recompute()

boolean2 = body2.newObject("PartDesign::Boolean", "Boolean001")
boolean2.Type = "Fuse"
boolean2.addObjects([body4])

# Sketch on XZ plane
sketch11 = body2.newObject("Sketcher::SketchObject", "Sketch010")
sketch11.AttachmentSupport = (doc.getObject("XZ_Plane001"), [""])
sketch11.MapMode = "FlatFace"
sketch11.AttachmentOffset = App.Placement(Vector(0, 0, -77.5), App.Rotation())
sketch11.addGeometry([
    Part.Circle(Vector(-3, 11, 0), Vector(0, 0, 1), 1.5),
    Part.Circle(Vector(16, 11, 0), Vector(0, 0, 1), 1.5),
    Part.Circle(Vector(-19, 11, 0), Vector(0, 0, 1), 1.5),
], False)
sketch11.addConstraint([
    Sketcher.Constraint("Equal", 0, 1),
    Sketcher.Constraint("Equal", 1, 2),
    Sketcher.Constraint("Horizontal", 0, 3, 1, 3),
    Sketcher.Constraint("Horizontal", 1, 3, 2, 3),
    Sketcher.Constraint("Diameter", 0, 3.0),
    Sketcher.Constraint("DistanceX", 0, 3, -1, 1, 3.0),
    Sketcher.Constraint("DistanceY", -1, 1, 0, 3, 11.0),
    Sketcher.Constraint("DistanceX", -1, 1, 1, 3, 16.0),
    Sketcher.Constraint("DistanceX", 2, 3, -1, 1, 19.0),
])
pad8 = body2.newObject("PartDesign::Pad", "Pad007")
pad8.Profile = sketch11
pad8.Length = 10
pad8.Reversed = True

doc.recompute()
